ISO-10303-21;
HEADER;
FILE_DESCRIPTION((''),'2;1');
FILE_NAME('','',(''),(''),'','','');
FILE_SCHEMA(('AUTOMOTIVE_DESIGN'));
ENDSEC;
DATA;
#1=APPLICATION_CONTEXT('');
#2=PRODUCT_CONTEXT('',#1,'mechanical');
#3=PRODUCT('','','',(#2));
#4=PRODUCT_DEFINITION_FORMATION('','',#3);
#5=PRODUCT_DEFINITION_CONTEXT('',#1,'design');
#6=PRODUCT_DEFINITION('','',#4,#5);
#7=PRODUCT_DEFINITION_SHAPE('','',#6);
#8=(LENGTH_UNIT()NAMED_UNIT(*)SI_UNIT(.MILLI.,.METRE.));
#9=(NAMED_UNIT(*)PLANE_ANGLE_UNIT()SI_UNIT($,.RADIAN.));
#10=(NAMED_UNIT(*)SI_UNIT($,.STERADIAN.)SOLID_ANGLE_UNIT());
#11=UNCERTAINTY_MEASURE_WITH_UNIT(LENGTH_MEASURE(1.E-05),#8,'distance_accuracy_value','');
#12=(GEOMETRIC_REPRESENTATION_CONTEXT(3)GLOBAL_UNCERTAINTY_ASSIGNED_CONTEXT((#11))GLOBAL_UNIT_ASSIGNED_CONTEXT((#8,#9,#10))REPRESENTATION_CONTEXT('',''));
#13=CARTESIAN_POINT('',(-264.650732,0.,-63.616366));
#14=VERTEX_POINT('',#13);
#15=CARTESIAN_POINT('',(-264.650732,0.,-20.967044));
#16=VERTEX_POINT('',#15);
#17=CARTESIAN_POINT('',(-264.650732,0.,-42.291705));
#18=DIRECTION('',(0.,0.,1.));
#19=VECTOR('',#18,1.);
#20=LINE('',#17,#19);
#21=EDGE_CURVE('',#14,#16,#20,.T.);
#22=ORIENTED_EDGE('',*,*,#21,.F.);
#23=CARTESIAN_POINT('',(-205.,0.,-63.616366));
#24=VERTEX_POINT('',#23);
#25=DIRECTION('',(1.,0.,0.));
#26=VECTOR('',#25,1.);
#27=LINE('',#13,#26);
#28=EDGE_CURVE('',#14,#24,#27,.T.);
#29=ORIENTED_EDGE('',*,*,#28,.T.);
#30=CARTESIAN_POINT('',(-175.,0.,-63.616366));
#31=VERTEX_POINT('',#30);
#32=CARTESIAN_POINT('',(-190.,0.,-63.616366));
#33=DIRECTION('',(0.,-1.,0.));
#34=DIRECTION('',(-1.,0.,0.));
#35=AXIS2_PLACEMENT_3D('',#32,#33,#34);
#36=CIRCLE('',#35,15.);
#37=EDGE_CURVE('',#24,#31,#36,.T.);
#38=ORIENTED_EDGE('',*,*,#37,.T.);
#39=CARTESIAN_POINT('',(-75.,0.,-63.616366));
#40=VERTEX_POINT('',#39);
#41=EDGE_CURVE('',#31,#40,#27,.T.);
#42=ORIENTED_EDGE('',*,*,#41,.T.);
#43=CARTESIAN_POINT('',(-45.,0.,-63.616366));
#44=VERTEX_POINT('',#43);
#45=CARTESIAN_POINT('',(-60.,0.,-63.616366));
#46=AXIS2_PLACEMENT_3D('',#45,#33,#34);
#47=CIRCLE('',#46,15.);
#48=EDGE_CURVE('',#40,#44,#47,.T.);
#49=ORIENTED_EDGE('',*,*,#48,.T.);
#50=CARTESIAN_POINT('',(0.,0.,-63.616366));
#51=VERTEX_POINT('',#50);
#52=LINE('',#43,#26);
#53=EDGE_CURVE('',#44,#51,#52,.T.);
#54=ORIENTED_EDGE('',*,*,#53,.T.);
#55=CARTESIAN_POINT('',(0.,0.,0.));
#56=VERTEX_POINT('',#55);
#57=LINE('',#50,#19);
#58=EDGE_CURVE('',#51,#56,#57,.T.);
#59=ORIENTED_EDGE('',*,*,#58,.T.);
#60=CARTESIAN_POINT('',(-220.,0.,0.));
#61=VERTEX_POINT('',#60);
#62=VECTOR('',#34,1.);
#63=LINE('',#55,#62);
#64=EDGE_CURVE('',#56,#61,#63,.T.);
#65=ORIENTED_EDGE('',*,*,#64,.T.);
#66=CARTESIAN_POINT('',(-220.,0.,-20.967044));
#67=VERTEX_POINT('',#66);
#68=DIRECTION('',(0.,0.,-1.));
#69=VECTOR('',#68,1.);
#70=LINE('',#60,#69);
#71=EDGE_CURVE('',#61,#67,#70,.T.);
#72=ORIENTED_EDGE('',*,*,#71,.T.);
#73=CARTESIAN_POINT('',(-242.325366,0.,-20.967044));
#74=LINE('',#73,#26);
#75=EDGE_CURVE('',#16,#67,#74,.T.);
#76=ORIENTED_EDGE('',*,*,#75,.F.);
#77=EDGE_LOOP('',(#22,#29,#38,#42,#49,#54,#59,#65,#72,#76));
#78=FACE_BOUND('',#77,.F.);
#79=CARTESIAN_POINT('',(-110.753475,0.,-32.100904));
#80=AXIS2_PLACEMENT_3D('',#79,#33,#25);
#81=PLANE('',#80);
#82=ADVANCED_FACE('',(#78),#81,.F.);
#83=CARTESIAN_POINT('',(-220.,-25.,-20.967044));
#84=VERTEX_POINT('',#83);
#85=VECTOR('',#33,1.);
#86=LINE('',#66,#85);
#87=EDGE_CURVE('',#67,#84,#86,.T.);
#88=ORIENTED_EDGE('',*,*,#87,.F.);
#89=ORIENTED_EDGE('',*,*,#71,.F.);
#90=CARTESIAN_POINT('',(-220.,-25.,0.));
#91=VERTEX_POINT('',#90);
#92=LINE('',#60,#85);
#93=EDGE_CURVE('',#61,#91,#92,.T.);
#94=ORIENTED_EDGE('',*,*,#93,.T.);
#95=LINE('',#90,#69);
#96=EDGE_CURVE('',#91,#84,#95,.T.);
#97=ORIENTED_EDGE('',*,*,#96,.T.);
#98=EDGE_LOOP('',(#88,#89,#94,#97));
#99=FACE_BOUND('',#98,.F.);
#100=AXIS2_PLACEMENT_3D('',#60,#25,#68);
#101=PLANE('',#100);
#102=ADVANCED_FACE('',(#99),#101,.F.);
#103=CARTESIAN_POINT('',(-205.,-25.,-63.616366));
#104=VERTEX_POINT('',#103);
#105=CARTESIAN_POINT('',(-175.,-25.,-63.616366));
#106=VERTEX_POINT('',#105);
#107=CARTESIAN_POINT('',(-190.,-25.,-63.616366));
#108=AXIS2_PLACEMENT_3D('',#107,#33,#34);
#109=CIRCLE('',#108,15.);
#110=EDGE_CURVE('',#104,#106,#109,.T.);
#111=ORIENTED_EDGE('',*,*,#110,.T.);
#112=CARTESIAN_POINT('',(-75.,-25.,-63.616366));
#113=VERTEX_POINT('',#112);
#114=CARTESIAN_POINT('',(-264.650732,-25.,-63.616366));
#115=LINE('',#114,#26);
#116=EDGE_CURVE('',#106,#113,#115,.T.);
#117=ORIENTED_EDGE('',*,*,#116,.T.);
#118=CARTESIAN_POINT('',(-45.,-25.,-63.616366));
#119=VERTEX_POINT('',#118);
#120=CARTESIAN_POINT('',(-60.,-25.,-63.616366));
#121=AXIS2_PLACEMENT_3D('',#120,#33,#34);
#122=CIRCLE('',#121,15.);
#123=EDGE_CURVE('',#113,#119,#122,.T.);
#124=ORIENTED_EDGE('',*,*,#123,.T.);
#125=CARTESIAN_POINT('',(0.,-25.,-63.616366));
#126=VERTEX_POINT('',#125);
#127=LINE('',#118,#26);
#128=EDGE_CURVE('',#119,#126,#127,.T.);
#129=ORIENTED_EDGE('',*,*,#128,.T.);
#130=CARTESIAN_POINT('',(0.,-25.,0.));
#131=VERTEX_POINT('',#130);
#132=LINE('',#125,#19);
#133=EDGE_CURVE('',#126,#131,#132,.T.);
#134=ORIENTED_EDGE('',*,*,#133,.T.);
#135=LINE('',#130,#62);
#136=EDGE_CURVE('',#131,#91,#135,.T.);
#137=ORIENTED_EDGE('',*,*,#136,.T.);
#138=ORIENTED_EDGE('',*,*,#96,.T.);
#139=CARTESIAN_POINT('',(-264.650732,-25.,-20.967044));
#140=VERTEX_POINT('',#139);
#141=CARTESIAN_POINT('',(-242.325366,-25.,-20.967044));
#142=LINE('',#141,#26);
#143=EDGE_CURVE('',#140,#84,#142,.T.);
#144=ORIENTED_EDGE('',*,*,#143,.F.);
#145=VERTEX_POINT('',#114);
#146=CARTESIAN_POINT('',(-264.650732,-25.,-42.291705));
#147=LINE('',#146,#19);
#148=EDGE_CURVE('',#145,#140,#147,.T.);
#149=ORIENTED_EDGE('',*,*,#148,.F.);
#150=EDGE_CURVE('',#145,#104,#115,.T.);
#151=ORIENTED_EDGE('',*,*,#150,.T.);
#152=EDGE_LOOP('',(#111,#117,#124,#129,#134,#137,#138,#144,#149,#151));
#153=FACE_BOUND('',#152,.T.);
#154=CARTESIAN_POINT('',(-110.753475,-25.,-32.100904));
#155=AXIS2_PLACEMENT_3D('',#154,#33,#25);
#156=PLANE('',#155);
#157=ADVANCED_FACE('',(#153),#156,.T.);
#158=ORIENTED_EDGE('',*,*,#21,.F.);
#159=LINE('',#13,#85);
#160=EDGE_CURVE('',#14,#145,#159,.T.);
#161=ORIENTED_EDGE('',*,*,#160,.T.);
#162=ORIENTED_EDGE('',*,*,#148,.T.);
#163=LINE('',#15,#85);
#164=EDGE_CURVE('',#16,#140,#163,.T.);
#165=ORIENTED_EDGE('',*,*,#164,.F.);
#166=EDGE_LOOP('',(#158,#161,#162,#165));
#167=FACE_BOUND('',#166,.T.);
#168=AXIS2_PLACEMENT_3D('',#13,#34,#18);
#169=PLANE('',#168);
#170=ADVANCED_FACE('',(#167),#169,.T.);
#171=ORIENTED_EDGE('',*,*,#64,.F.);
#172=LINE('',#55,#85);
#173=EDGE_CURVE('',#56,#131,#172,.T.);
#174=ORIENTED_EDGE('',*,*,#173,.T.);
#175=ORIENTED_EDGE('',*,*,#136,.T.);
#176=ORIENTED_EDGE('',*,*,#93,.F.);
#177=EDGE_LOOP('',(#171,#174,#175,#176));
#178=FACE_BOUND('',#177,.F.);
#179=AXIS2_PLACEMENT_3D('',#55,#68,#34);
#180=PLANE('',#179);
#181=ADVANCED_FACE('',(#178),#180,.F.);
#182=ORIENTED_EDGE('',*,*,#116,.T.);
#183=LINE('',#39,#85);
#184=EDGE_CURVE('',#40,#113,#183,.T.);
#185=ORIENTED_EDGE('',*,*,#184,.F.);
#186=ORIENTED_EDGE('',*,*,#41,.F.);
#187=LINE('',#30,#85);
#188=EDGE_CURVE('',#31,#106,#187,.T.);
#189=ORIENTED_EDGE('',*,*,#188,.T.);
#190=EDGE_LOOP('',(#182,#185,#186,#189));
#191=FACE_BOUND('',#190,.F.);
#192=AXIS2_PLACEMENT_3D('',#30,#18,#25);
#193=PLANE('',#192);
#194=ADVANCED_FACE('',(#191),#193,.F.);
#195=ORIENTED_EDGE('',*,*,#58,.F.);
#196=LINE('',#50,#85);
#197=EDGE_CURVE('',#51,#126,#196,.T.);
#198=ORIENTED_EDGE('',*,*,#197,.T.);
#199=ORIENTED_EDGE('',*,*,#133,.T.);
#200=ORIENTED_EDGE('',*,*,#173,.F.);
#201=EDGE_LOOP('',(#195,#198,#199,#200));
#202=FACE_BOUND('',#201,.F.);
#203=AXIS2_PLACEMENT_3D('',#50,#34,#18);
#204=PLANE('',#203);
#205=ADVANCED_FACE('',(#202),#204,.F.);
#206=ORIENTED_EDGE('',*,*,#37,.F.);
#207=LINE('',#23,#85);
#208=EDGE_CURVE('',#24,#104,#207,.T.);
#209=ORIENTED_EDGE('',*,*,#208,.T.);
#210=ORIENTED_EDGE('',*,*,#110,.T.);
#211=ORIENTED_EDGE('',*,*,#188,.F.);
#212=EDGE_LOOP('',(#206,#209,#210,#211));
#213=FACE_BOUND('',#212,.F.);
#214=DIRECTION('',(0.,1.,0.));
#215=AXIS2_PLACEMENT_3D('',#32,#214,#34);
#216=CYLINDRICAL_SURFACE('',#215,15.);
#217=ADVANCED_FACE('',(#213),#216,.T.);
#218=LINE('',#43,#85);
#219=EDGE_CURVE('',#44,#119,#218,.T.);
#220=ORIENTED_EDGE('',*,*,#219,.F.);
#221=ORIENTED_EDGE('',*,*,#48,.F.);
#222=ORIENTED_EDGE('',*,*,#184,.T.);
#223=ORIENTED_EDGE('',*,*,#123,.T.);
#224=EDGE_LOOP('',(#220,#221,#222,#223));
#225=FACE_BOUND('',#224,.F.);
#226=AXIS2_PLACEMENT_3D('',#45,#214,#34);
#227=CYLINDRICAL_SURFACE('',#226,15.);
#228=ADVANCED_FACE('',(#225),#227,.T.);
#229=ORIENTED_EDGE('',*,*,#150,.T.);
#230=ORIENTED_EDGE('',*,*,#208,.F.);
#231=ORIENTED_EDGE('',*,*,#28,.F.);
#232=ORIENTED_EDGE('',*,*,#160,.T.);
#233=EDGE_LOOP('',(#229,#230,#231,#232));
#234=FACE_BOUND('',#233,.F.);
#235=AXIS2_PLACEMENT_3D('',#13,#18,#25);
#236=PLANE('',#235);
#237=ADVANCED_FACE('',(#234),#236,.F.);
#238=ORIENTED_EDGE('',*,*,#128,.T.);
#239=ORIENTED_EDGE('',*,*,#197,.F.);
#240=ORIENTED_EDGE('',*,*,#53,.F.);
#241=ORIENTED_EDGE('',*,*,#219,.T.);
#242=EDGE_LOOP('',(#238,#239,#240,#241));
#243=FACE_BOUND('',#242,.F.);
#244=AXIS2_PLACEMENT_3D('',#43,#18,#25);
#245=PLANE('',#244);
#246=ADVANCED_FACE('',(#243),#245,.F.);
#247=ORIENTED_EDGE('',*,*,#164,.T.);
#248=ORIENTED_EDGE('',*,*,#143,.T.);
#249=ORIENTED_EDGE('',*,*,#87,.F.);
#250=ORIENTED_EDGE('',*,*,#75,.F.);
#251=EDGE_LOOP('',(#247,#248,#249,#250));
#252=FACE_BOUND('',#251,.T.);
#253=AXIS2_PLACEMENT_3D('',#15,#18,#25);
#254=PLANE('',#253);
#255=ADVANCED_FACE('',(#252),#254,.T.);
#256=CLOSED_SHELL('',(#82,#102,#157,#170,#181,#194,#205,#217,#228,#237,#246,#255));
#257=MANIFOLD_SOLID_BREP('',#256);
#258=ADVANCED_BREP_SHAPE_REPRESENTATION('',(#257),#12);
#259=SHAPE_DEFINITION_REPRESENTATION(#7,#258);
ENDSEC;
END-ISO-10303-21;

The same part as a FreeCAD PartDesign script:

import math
import FreeCAD as App
import Part
import Sketcher

doc = App.newDocument("Part")
body = doc.addObject("PartDesign::Body", "Body")

# Sketch on XZ plane
sketch1 = body.newObject("Sketcher::SketchObject", "Sketch")
sketch1.AttachmentSupport = (doc.getObject("XZ_Plane"), [""])
sketch1.MapMode = "FlatFace"
sketch1.addGeometry([
    Part.LineSegment(App.Vector(0, -64, 0), App.Vector(0, 0, 0)),  # 0
    Part.LineSegment(App.Vector(0, 0, 0), App.Vector(-220, 0, 0)),  # 1
    Part.LineSegment(App.Vector(-220, 0, 0), App.Vector(-220, -21, 0)),  # 2
    Part.LineSegment(App.Vector(-220, -21, 0), App.Vector(-265, -21, 0)),  # 3
    Part.LineSegment(App.Vector(-265, -21, 0), App.Vector(-265, -64, 0)),  # 4
    Part.LineSegment(App.Vector(-265, -64, 0), App.Vector(-205, -64, 0)),  # 5
    Part.ArcOfCircle(Part.Circle(App.Vector(-190, -64, 0), App.Vector(0, 0, 1), 15), math.radians(180), math.radians(360)),  # 6
    Part.LineSegment(App.Vector(-175, -64, 0), App.Vector(-75, -64, 0)),  # 7
    Part.ArcOfCircle(Part.Circle(App.Vector(-60, -64, 0), App.Vector(0, 0, 1), 15), math.radians(180), math.radians(360)),  # 8
    Part.LineSegment(App.Vector(-45, -64, 0), App.Vector(0, -64, 0)),  # 9
], False)
sketch1.addConstraint([
    Sketcher.Constraint("Coincident", 0, 2, 1, 1),
    Sketcher.Constraint("Coincident", 1, 2, 2, 1),
    Sketcher.Constraint("Coincident", 2, 2, 3, 1),
    Sketcher.Constraint("Coincident", 3, 2, 4, 1),
    Sketcher.Constraint("Coincident", 4, 2, 5, 1),
    Sketcher.Constraint("Coincident", 5, 2, 6, 1),
    Sketcher.Constraint("Coincident", 6, 2, 7, 1),
    Sketcher.Constraint("Coincident", 7, 2, 8, 1),
    Sketcher.Constraint("Coincident", 8, 2, 9, 1),
    Sketcher.Constraint("Coincident", 9, 2, 0, 1),
    Sketcher.Constraint("Vertical", 0),
    Sketcher.Constraint("Horizontal", 1),
    Sketcher.Constraint("Vertical", 2),
    Sketcher.Constraint("Horizontal", 3),
    Sketcher.Constraint("Vertical", 4),
    Sketcher.Constraint("Horizontal", 5),
    Sketcher.Constraint("Horizontal", 7),
    Sketcher.Constraint("Horizontal", 9),
    Sketcher.Constraint("Coincident", 0, 2, -1, 1),
    Sketcher.Constraint("Equal", 6, 8),
    Sketcher.Constraint("Horizontal", 6, 3, 8, 3),
    Sketcher.Constraint("Horizontal", 8, 3, 4, 2),
    Sketcher.Constraint("Horizontal", 5, 2, 6, 2),
    Sketcher.Constraint("Horizontal", 7, 2, 8, 2),
    Sketcher.Constraint("Radius", 6, 15.0),
    Sketcher.Constraint("DistanceX", 1, 2, 1, 1, 220.0),
    Sketcher.Constraint("DistanceX", 7, 1, 7, 2, 100.0),
    Sketcher.Constraint("DistanceX", 9, 1, 9, 2, 45.0),
    Sketcher.Constraint("DistanceX", 3, 2, 3, 1, 44.650732),
    Sketcher.Constraint("DistanceY", 0, 1, 0, 2, 63.616366),
    Sketcher.Constraint("DistanceY", 2, 2, 2, 1, 20.967044),
])
pad1 = body.newObject("PartDesign::Pad", "Pad")
pad1.Profile = sketch1
pad1.Length = 25

doc.recompute()
